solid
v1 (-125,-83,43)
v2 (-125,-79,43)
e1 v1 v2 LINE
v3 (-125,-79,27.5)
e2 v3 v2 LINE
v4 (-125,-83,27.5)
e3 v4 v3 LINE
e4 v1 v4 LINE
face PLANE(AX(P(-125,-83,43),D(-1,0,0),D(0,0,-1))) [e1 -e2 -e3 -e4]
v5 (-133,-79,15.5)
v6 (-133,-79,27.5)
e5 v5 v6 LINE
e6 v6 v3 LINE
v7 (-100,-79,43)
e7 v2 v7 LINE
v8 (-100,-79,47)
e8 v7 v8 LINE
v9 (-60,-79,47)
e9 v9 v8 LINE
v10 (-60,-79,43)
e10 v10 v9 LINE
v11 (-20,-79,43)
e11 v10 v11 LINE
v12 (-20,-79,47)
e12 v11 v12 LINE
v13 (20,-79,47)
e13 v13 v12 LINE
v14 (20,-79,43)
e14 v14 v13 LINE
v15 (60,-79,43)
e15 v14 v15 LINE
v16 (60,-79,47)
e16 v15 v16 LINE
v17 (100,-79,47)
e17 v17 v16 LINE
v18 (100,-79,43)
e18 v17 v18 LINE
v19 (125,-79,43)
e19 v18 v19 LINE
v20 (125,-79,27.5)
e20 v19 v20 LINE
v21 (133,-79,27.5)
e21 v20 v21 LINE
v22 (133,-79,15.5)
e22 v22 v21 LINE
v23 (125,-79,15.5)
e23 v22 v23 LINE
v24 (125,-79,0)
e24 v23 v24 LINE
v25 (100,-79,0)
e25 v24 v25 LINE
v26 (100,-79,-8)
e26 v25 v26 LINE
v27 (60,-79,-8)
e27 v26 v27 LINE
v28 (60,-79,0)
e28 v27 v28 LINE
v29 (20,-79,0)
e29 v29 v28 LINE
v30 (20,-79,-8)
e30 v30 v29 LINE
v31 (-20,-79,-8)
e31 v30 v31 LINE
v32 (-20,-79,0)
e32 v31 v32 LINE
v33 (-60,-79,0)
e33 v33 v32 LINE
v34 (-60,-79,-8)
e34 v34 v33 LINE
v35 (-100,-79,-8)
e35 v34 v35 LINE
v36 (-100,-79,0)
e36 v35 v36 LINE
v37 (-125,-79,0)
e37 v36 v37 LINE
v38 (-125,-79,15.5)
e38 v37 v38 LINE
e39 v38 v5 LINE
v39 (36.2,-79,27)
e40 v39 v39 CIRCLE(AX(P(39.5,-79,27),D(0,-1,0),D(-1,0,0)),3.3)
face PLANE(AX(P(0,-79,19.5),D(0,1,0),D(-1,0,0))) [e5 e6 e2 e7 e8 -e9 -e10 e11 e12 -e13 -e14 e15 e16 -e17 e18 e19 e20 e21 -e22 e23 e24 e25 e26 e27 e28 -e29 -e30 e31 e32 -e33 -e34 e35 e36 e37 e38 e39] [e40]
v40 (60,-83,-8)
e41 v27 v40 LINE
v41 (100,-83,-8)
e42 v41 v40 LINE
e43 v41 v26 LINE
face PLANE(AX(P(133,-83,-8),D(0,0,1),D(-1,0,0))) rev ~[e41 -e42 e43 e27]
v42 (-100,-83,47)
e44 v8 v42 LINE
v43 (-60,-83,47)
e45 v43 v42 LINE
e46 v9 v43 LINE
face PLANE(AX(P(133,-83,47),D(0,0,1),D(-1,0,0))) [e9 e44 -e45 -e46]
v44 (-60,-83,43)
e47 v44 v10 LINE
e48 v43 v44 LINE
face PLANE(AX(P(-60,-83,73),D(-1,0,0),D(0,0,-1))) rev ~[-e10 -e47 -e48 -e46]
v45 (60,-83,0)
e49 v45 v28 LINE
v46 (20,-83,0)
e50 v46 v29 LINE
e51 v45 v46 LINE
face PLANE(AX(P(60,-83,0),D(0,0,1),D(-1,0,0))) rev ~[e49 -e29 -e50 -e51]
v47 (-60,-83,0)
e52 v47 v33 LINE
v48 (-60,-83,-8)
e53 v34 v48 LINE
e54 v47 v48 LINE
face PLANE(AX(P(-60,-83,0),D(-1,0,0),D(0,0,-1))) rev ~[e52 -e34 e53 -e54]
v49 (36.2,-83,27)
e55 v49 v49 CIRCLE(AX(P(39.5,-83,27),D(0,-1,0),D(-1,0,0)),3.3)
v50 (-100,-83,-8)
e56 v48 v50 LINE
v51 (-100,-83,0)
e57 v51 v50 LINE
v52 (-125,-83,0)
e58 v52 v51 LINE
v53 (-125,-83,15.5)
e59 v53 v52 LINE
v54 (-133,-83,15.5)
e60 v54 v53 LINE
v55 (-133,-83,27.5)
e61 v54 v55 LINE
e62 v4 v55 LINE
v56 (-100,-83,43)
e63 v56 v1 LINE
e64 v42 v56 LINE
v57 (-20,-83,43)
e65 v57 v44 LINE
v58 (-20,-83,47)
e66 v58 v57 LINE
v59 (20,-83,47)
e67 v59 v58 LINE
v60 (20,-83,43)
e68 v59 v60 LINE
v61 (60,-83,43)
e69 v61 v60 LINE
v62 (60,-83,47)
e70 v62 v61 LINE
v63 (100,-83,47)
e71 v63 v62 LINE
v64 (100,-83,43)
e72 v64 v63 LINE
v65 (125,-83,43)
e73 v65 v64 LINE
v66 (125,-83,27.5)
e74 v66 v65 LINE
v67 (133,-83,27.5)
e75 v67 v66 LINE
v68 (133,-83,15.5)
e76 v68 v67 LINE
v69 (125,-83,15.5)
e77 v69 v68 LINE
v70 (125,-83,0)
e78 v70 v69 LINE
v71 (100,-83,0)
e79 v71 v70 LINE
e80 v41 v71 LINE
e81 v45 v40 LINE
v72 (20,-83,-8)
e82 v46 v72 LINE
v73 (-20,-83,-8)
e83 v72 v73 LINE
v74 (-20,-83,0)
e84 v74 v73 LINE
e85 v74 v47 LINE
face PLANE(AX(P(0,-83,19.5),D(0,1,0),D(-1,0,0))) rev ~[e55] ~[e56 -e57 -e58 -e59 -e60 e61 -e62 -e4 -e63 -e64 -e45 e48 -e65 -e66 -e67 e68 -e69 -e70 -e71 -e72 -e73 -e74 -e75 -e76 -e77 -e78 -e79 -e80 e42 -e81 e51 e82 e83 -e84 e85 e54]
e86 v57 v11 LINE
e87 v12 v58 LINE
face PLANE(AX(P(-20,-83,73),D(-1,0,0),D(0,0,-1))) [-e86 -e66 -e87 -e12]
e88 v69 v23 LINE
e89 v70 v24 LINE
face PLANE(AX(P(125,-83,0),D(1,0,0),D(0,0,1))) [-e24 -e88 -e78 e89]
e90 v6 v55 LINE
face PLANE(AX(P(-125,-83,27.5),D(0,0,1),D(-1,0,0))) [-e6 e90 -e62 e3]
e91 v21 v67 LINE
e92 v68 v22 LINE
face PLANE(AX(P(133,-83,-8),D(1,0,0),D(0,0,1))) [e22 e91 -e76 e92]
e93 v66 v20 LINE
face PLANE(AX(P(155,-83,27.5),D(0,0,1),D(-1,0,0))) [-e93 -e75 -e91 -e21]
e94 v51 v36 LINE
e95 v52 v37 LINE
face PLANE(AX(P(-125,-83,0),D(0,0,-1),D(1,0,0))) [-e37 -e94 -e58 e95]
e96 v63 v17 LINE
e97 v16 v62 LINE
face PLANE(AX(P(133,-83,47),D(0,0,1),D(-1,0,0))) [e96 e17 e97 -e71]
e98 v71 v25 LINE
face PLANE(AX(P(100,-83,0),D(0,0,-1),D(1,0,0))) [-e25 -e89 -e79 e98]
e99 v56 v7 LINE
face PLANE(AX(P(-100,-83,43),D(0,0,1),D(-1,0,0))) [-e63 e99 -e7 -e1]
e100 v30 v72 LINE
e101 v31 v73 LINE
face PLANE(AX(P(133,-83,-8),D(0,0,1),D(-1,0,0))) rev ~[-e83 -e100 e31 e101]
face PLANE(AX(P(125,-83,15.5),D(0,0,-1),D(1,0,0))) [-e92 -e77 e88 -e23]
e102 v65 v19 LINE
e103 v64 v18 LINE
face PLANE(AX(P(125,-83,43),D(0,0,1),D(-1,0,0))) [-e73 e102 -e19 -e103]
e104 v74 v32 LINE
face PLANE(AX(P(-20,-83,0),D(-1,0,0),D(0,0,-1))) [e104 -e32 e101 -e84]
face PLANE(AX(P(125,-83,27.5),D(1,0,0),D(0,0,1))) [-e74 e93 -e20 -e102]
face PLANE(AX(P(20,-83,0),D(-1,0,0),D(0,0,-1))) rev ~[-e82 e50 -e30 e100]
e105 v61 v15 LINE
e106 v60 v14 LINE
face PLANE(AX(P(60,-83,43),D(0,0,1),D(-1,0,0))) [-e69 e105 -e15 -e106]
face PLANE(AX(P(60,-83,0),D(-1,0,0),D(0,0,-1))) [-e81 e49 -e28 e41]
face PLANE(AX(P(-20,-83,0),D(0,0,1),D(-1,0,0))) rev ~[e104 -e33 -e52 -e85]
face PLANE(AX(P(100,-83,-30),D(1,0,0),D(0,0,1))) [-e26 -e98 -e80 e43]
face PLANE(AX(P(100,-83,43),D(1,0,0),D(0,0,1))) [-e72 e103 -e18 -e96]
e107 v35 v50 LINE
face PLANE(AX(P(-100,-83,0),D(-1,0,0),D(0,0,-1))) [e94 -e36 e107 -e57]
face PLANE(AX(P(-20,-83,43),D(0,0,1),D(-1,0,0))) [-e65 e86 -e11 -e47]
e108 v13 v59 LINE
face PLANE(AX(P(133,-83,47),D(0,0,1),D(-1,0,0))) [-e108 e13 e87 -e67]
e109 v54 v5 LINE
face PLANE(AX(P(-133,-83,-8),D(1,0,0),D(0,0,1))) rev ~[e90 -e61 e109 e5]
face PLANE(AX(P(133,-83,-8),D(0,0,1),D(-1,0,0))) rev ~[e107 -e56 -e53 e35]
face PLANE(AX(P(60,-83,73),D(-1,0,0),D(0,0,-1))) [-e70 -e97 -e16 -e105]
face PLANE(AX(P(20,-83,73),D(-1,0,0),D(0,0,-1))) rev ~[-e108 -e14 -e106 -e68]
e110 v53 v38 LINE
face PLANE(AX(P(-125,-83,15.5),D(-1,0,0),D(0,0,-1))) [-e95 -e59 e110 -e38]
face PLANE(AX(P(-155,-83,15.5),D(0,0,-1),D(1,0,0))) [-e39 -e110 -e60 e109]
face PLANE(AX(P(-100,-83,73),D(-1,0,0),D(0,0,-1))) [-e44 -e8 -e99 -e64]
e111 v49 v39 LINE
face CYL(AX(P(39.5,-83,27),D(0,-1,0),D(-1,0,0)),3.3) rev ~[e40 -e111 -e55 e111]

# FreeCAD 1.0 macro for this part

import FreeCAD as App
import Part
import Sketcher
from FreeCAD import Vector

doc = App.newDocument("Part")
params = doc.addObject("Spreadsheet::Sheet", "Params")
for row, (alias, value) in enumerate([
    ("sketch1_width", "266 mm"),
    ("sketch1_height", "55 mm"),
    ("pad1_length", "4 mm"),
    ("sketch2_width", "40 mm"),
    ("sketch2_width2", "45 mm"),
    ("sketch2_width3", "25 mm"),
    ("sketch2_width4", "30 mm"),
    ("sketch2_height", "20 mm"),
    ("sketch3_diameter", "6.6 mm"),
    ("pocket2_length", "25 mm"),
], start=1):
    params.set(f"A{row}", alias)
    params.set(f"B{row}", "=" + value)
    params.setAlias(f"B{row}", alias)

body = doc.addObject("PartDesign::Body", "Body")

sketch1 = body.newObject("Sketcher::SketchObject", "Sketch")
sketch1.AttachmentSupport = (doc.getObject("XZ_Plane"), [""])
sketch1.MapMode = "FlatFace"
sketch1.AttachmentOffset = App.Placement(Vector(0, 0, 83), App.Rotation())
sketch1.addGeometry(Part.LineSegment(Vector(133, 47, 0), Vector(133, -8, 0)), False)
sketch1.addGeometry(Part.LineSegment(Vector(133, -8, 0), Vector(-133, -8, 0)), False)
sketch1.addGeometry(Part.LineSegment(Vector(-133, -8, 0), Vector(-133, 47, 0)), False)
sketch1.addGeometry(Part.LineSegment(Vector(-133, 47, 0), Vector(133, 47, 0)), False)
sketch1.addConstraint(Sketcher.Constraint("Coincident", 0, 2, 1, 1))
sketch1.addConstraint(Sketcher.Constraint("Coincident", 1, 2, 2, 1))
sketch1.addConstraint(Sketcher.Constraint("Coincident", 2, 2, 3, 1))
sketch1.addConstraint(Sketcher.Constraint("Coincident", 3, 2, 0, 1))
sketch1.addConstraint(Sketcher.Constraint("Vertical", 0))
sketch1.addConstraint(Sketcher.Constraint("Horizontal", 1))
sketch1.addConstraint(Sketcher.Constraint("Vertical", 2))
sketch1.addConstraint(Sketcher.Constraint("Horizontal", 3))
sketch1.addConstraint(Sketcher.Constraint("DistanceX", 1, 2, 1, 1, 266.0))
sketch1.addConstraint(Sketcher.Constraint("DistanceY", 0, 2, 0, 1, 55.0))
sketch1.addConstraint(Sketcher.Constraint("DistanceX", -1, 1, 0, 2, 133.0))
sketch1.addConstraint(Sketcher.Constraint("DistanceY", 0, 2, -1, 1, 8.0))
sketch1.setExpression("Constraints[8]", "Params.sketch1_width")
sketch1.setExpression("Constraints[9]", "Params.sketch1_height")
pad1 = body.newObject("PartDesign::Pad", "Pad")
pad1.Profile = sketch1
pad1.setExpression("Length", "Params.pad1_length")
pad1.Reversed = True

sketch2 = body.newObject("Sketcher::SketchObject", "Sketch001")
sketch2.AttachmentSupport = (doc.getObject("XZ_Plane"), [""])
sketch2.MapMode = "FlatFace"
sketch2.AttachmentOffset = App.Placement(Vector(0, 0, 83), App.Rotation())
sketch2.addGeometry(Part.LineSegment(Vector(60, -30, 0), Vector(60, 0, 0)), False)
sketch2.addGeometry(Part.LineSegment(Vector(60, 0, 0), Vector(20, 0, 0)), False)
sketch2.addGeometry(Part.LineSegment(Vector(20, 0, 0), Vector(20, -30, 0)), False)
sketch2.addGeometry(Part.LineSegment(Vector(20, -30, 0), Vector(60, -30, 0)), False)
sketch2.addGeometry(Part.LineSegment(Vector(-20, -30, 0), Vector(-20, 0, 0)), False)
sketch2.addGeometry(Part.LineSegment(Vector(-20, 0, 0), Vector(-60, 0, 0)), False)
sketch2.addGeometry(Part.LineSegment(Vector(-60, 0, 0), Vector(-60, -30, 0)), False)
sketch2.addGeometry(Part.LineSegment(Vector(-60, -30, 0), Vector(-20, -30, 0)), False)
sketch2.addGeometry(Part.LineSegment(Vector(-145, -30, 0), Vector(-100, -30, 0)), False)
sketch2.addGeometry(Part.LineSegment(Vector(-100, -30, 0), Vector(-100, 0, 0)), False)
sketch2.addGeometry(Part.LineSegment(Vector(-100, 0, 0), Vector(-125, 0, 0)), False)
sketch2.addGeometry(Part.LineSegment(Vector(-125, 0, 0), Vector(-125, 16, 0)), False)
sketch2.addGeometry(Part.LineSegment(Vector(-125, 16, 0), Vector(-155, 16, 0)), False)
sketch2.addGeometry(Part.LineSegment(Vector(-155, 16, 0), Vector(-155, -4, 0)), False)
sketch2.addGeometry(Part.LineSegment(Vector(-155, -4, 0), Vector(-145, -4, 0)), False)
sketch2.addGeometry(Part.LineSegment(Vector(-145, -4, 0), Vector(-145, -30, 0)), False)
sketch2.addGeometry(Part.LineSegment(Vector(100, -30, 0), Vector(145, -30, 0)), False)
sketch2.addGeometry(Part.LineSegment(Vector(145, -30, 0), Vector(145, -4, 0)), False)
sketch2.addGeometry(Part.LineSegment(Vector(145, -4, 0), Vector(155, -4, 0)), False)
sketch2.addGeometry(Part.LineSegment(Vector(155, -4, 0), Vector(155, 16, 0)), False)
sketch2.addGeometry(Part.LineSegment(Vector(155, 16, 0), Vector(125, 16, 0)), False)
sketch2.addGeometry(Part.LineSegment(Vector(125, 16, 0), Vector(125, 0, 0)), False)
sketch2.addGeometry(Part.LineSegment(Vector(125, 0, 0), Vector(100, 0, 0)), False)
sketch2.addGeometry(Part.LineSegment(Vector(100, 0, 0), Vector(100, -30, 0)), False)
sketch2.addGeometry(Part.LineSegment(Vector(100, 43, 0), Vector(125, 43, 0)), False)
sketch2.addGeometry(Part.LineSegment(Vector(125, 43, 0), Vector(125, 28, 0)), False)
sketch2.addGeometry(Part.LineSegment(Vector(125, 28, 0), Vector(155, 28, 0)), False)
sketch2.addGeometry(Part.LineSegment(Vector(155, 28, 0), Vector(155, 48, 0)), False)
sketch2.addGeometry(Part.LineSegment(Vector(155, 48, 0), Vector(145, 48, 0)), False)
sketch2.addGeometry(Part.LineSegment(Vector(145, 48, 0), Vector(145, 73, 0)), False)
sketch2.addGeometry(Part.LineSegment(Vector(145, 73, 0), Vector(100, 73, 0)), False)
sketch2.addGeometry(Part.LineSegment(Vector(100, 73, 0), Vector(100, 43, 0)), False)
sketch2.addGeometry(Part.LineSegment(Vector(60, 43, 0), Vector(60, 73, 0)), False)
sketch2.addGeometry(Part.LineSegment(Vector(60, 73, 0), Vector(20, 73, 0)), False)
sketch2.addGeometry(Part.LineSegment(Vector(20, 73, 0), Vector(20, 43, 0)), False)
sketch2.addGeometry(Part.LineSegment(Vector(20, 43, 0), Vector(60, 43, 0)), False)
sketch2.addGeometry(Part.LineSegment(Vector(-20, 43, 0), Vector(-20, 73, 0)), False)
sketch2.addGeometry(Part.LineSegment(Vector(-20, 73, 0), Vector(-60, 73, 0)), False)
sketch2.addGeometry(Part.LineSegment(Vector(-60, 73, 0), Vector(-60, 43, 0)), False)
sketch2.addGeometry(Part.LineSegment(Vector(-60, 43, 0), Vector(-20, 43, 0)), False)
sketch2.addGeometry(Part.LineSegment(Vector(-125, 43, 0), Vector(-100, 43, 0)), False)
sketch2.addGeometry(Part.LineSegment(Vector(-100, 43, 0), Vector(-100, 73, 0)), False)
sketch2.addGeometry(Part.LineSegment(Vector(-100, 73, 0), Vector(-145, 73, 0)), False)
sketch2.addGeometry(Part.LineSegment(Vector(-145, 73, 0), Vector(-145, 48, 0)), False)
sketch2.addGeometry(Part.LineSegment(Vector(-145, 48, 0), Vector(-155, 48, 0)), False)
sketch2.addGeometry(Part.LineSegment(Vector(-155, 48, 0), Vector(-155, 28, 0)), False)
sketch2.addGeometry(Part.LineSegment(Vector(-155, 28, 0), Vector(-125, 28, 0)), False)
sketch2.addGeometry(Part.LineSegment(Vector(-125, 28, 0), Vector(-125, 43, 0)), False)
sketch2.addConstraint(Sketcher.Constraint("Coincident", 0, 2, 1, 1))
sketch2.addConstraint(Sketcher.Constraint("Coincident", 1, 2, 2, 1))
sketch2.addConstraint(Sketcher.Constraint("Coincident", 2, 2, 3, 1))
sketch2.addConstraint(Sketcher.Constraint("Coincident", 3, 2, 0, 1))
sketch2.addConstraint(Sketcher.Constraint("Coincident", 4, 2, 5, 1))
sketch2.addConstraint(Sketcher.Constraint("Coincident", 5, 2, 6, 1))
sketch2.addConstraint(Sketcher.Constraint("Coincident", 6, 2, 7, 1))
sketch2.addConstraint(Sketcher.Constraint("Coincident", 7, 2, 4, 1))
sketch2.addConstraint(Sketcher.Constraint("Coincident", 8, 2, 9, 1))
sketch2.addConstraint(Sketcher.Constraint("Coincident", 9, 2, 10, 1))
sketch2.addConstraint(Sketcher.Constraint("Coincident", 10, 2, 11, 1))
sketch2.addConstraint(Sketcher.Constraint("Coincident", 11, 2, 12, 1))
sketch2.addConstraint(Sketcher.Constraint("Coincident", 12, 2, 13, 1))
sketch2.addConstraint(Sketcher.Constraint("Coincident", 13, 2, 14, 1))
sketch2.addConstraint(Sketcher.Constraint("Coincident", 14, 2, 15, 1))
sketch2.addConstraint(Sketcher.Constraint("Coincident", 15, 2, 8, 1))
sketch2.addConstraint(Sketcher.Constraint("Coincident", 16, 2, 17, 1))
sketch2.addConstraint(Sketcher.Constraint("Coincident", 17, 2, 18, 1))
sketch2.addConstraint(Sketcher.Constraint("Coincident", 18, 2, 19, 1))
sketch2.addConstraint(Sketcher.Constraint("Coincident", 19, 2, 20, 1))
sketch2.addConstraint(Sketcher.Constraint("Coincident", 20, 2, 21, 1))
sketch2.addConstraint(Sketcher.Constraint("Coincident", 21, 2, 22, 1))
sketch2.addConstraint(Sketcher.Constraint("Coincident", 22, 2, 23, 1))
sketch2.addConstraint(Sketcher.Constraint("Coincident", 23, 2, 16, 1))
sketch2.addConstraint(Sketcher.Constraint("Coincident", 24, 2, 25, 1))
sketch2.addConstraint(Sketcher.Constraint("Coincident", 25, 2, 26, 1))
sketch2.addConstraint(Sketcher.Constraint("Coincident", 26, 2, 27, 1))
sketch2.addConstraint(Sketcher.Constraint("Coincident", 27, 2, 28, 1))
sketch2.addConstraint(Sketcher.Constraint("Coincident", 28, 2, 29, 1))
sketch2.addConstraint(Sketcher.Constraint("Coincident", 29, 2, 30, 1))
sketch2.addConstraint(Sketcher.Constraint("Coincident", 30, 2, 31, 1))
sketch2.addConstraint(Sketcher.Constraint("Coincident", 31, 2, 24, 1))
sketch2.addConstraint(Sketcher.Constraint("Coincident", 32, 2, 33, 1))
sketch2.addConstraint(Sketcher.Constraint("Coincident", 33, 2, 34, 1))
sketch2.addConstraint(Sketcher.Constraint("Coincident", 34, 2, 35, 1))
sketch2.addConstraint(Sketcher.Constraint("Coincident", 35, 2, 32, 1))
sketch2.addConstraint(Sketcher.Constraint("Coincident", 36, 2, 37, 1))
sketch2.addConstraint(Sketcher.Constraint("Coincident", 37, 2, 38, 1))
sketch2.addConstraint(Sketcher.Constraint("Coincident", 38, 2, 39, 1))
sketch2.addConstraint(Sketcher.Constraint("Coincident", 39, 2, 36, 1))
sketch2.addConstraint(Sketcher.Constraint("Coincident", 40, 2, 41, 1))
sketch2.addConstraint(Sketcher.Constraint("Coincident", 41, 2, 42, 1))
sketch2.addConstraint(Sketcher.Constraint("Coincident", 42, 2, 43, 1))
sketch2.addConstraint(Sketcher.Constraint("Coincident", 43, 2, 44, 1))
sketch2.addConstraint(Sketcher.Constraint("Coincident", 44, 2, 45, 1))
sketch2.addConstraint(Sketcher.Constraint("Coincident", 45, 2, 46, 1))
sketch2.addConstraint(Sketcher.Constraint("Coincident", 46, 2, 47, 1))
sketch2.addConstraint(Sketcher.Constraint("Coincident", 47, 2, 40, 1))
sketch2.addConstraint(Sketcher.Constraint("Vertical", 0))
sketch2.addConstraint(Sketcher.Constraint("Horizontal", 1))
sketch2.addConstraint(Sketcher.Constraint("Vertical", 2))
sketch2.addConstraint(Sketcher.Constraint("Horizontal", 3))
sketch2.addConstraint(Sketcher.Constraint("Vertical", 4))
sketch2.addConstraint(Sketcher.Constraint("Horizontal", 5))
sketch2.addConstraint(Sketcher.Constraint("Vertical", 6))
sketch2.addConstraint(Sketcher.Constraint("Horizontal", 7))
sketch2.addConstraint(Sketcher.Constraint("Horizontal", 8))
sketch2.addConstraint(Sketcher.Constraint("Vertical", 9))
sketch2.addConstraint(Sketcher.Constraint("Horizontal", 10))
sketch2.addConstraint(Sketcher.Constraint("Vertical", 11))
sketch2.addConstraint(Sketcher.Constraint("Horizontal", 12))
sketch2.addConstraint(Sketcher.Constraint("Vertical", 13))
sketch2.addConstraint(Sketcher.Constraint("Horizontal", 14))
sketch2.addConstraint(Sketcher.Constraint("Vertical", 15))
sketch2.addConstraint(Sketcher.Constraint("Horizontal", 16))
sketch2.addConstraint(Sketcher.Constraint("Vertical", 17))
sketch2.addConstraint(Sketcher.Constraint("Horizontal", 18))
sketch2.addConstraint(Sketcher.Constraint("Vertical", 19))
sketch2.addConstraint(Sketcher.Constraint("Horizontal", 20))
sketch2.addConstraint(Sketcher.Constraint("Vertical", 21))
sketch2.addConstraint(Sketcher.Constraint("Horizontal", 22))
sketch2.addConstraint(Sketcher.Constraint("Vertical", 23))
sketch2.addConstraint(Sketcher.Constraint("Horizontal", 24))
sketch2.addConstraint(Sketcher.Constraint("Vertical", 25))
sketch2.addConstraint(Sketcher.Constraint("Horizontal", 26))
sketch2.addConstraint(Sketcher.Constraint("Vertical", 27))
sketch2.addConstraint(Sketcher.Constraint("Horizontal", 28))
sketch2.addConstraint(Sketcher.Constraint("Vertical", 29))
sketch2.addConstraint(Sketcher.Constraint("Horizontal", 30))
sketch2.addConstraint(Sketcher.Constraint("Vertical", 31))
sketch2.addConstraint(Sketcher.Constraint("Vertical", 32))
sketch2.addConstraint(Sketcher.Constraint("Horizontal", 33))
sketch2.addConstraint(Sketcher.Constraint("Vertical", 34))
sketch2.addConstraint(Sketcher.Constraint("Horizontal", 35))
sketch2.addConstraint(Sketcher.Constraint("Vertical", 36))
sketch2.addConstraint(Sketcher.Constraint("Horizontal", 37))
sketch2.addConstraint(Sketcher.Constraint("Vertical", 38))
sketch2.addConstraint(Sketcher.Constraint("Horizontal", 39))
sketch2.addConstraint(Sketcher.Constraint("Horizontal", 40))
sketch2.addConstraint(Sketcher.Constraint("Vertical", 41))
sketch2.addConstraint(Sketcher.Constraint("Horizontal", 42))
sketch2.addConstraint(Sketcher.Constraint("Vertical", 43))
sketch2.addConstraint(Sketcher.Constraint("Horizontal", 44))
sketch2.addConstraint(Sketcher.Constraint("Vertical", 45))
sketch2.addConstraint(Sketcher.Constraint("Horizontal", 46))
sketch2.addConstraint(Sketcher.Constraint("Vertical", 47))
sketch2.addConstraint(Sketcher.Constraint("Symmetric", 1, 2, 4, 2, -1, 1))
sketch2.addConstraint(Sketcher.Constraint("Symmetric", 10, 2, 21, 2, -1, 1))
sketch2.addConstraint(Sketcher.Constraint("Symmetric", 0, 2, 5, 2, -2))
sketch2.addConstraint(Sketcher.Constraint("Symmetric", 15, 2, 16, 2, -2))
sketch2.addConstraint(Sketcher.Constraint("Symmetric", 13, 2, 18, 2, -2))
sketch2.addConstraint(Sketcher.Constraint("Symmetric", 9, 2, 22, 2, -2))
sketch2.addConstraint(Sketcher.Constraint("Symmetric", 33, 2, 36, 2, -2))
sketch2.addConstraint(Sketcher.Constraint("Symmetric", 35, 2, 38, 2, -2))
sketch2.addConstraint(Sketcher.Constraint("Symmetric", 31, 2, 40, 2, -2))
sketch2.addConstraint(Sketcher.Constraint("Symmetric", 29, 2, 42, 2, -2))
sketch2.addConstraint(Sketcher.Constraint("Symmetric", 27, 2, 44, 2, -2))
sketch2.addConstraint(Sketcher.Constraint("Symmetric", 25, 2, 46, 2, -2))
sketch2.addConstraint(Sketcher.Constraint("Horizontal", 3, 2, 6, 2))
sketch2.addConstraint(Sketcher.Constraint("Horizontal", 7, 2, 8, 2))
sketch2.addConstraint(Sketcher.Constraint("Horizontal", 12, 2, 19, 2))
sketch2.addConstraint(Sketcher.Constraint("Horizontal", 30, 2, 32, 2))
sketch2.addConstraint(Sketcher.Constraint("Horizontal", 31, 2, 34, 2))
sketch2.addConstraint(Sketcher.Constraint("Vertical", 21, 2, 24, 2))
sketch2.addConstraint(Sketcher.Constraint("Vertical", 19, 2, 26, 2))
sketch2.addConstraint(Sketcher.Constraint("Vertical", 17, 2, 28, 2))
sketch2.addConstraint(Sketcher.Constraint("Vertical", 23, 2, 30, 2))
sketch2.addConstraint(Sketcher.Constraint("Vertical", 3, 2, 32, 2))
sketch2.addConstraint(Sketcher.Constraint("Vertical", 2, 2, 33, 2))
sketch2.addConstraint(Sketcher.Constraint("Equal", 46, 0))
sketch2.addConstraint(Sketcher.Constraint("Equal", 21, 25))
sketch2.addConstraint(Sketcher.Constraint("Equal", 19, 27))
sketch2.addConstraint(Sketcher.Constraint("Equal", 17, 29))
sketch2.addConstraint(Sketcher.Constraint("DistanceX", 1, 2, 1, 1, 40.0))
sketch2.addConstraint(Sketcher.Constraint("DistanceX", 8, 1, 8, 2, 45.0))
sketch2.addConstraint(Sketcher.Constraint("DistanceX", 10, 2, 10, 1, 25.0))
sketch2.addConstraint(Sketcher.Constraint("DistanceX", 12, 2, 12, 1, 30.0))
sketch2.addConstraint(Sketcher.Constraint("DistanceY", 13, 2, 13, 1, 20.0))
sketch2.addConstraint(Sketcher.Constraint("DistanceY", 11, 1, 11, 2, 15.5))
sketch2.addConstraint(Sketcher.Constraint("DistanceX", -1, 1, 0, 2, 60.0))
sketch2.addConstraint(Sketcher.Constraint("DistanceX", 8, 2, -1, 1, 100.0))
sketch2.addConstraint(Sketcher.Constraint("DistanceY", -1, 1, 24, 2, 43.0))
sketch2.setExpression("Constraints[123]", "Params.sketch2_width")
sketch2.setExpression("Constraints[124]", "Params.sketch2_width2")
sketch2.setExpression("Constraints[125]", "Params.sketch2_width3")
sketch2.setExpression("Constraints[126]", "Params.sketch2_width4")
sketch2.setExpression("Constraints[127]", "Params.sketch2_height")
pocket1 = body.newObject("PartDesign::Pocket", "Pocket")
pocket1.Profile = sketch2
pocket1.Type = "ThroughAll"

sketch3 = body.newObject("Sketcher::SketchObject", "Sketch002")
sketch3.AttachmentSupport = (doc.getObject("XZ_Plane"), [""])
sketch3.MapMode = "FlatFace"
sketch3.AttachmentOffset = App.Placement(Vector(0, 0, 83), App.Rotation())
sketch3.addGeometry(Part.Circle(Vector(39.5, 27, 0), Vector(0, 0, 1), 3.3), False)
sketch3.addConstraint(Sketcher.Constraint("Diameter", 0, 6.6))
sketch3.addConstraint(Sketcher.Constraint("DistanceY", -1, 1, 0, 3, 27.0))
sketch3.addConstraint(Sketcher.Constraint("DistanceX", -1, 1, 0, 3, 39.5))
sketch3.setExpression("Constraints[0]", "Params.sketch3_diameter")
pocket2 = body.newObject("PartDesign::Pocket", "Pocket001")
pocket2.Profile = sketch3
pocket2.setExpression("Length", "Params.pocket2_length")

doc.recompute()
